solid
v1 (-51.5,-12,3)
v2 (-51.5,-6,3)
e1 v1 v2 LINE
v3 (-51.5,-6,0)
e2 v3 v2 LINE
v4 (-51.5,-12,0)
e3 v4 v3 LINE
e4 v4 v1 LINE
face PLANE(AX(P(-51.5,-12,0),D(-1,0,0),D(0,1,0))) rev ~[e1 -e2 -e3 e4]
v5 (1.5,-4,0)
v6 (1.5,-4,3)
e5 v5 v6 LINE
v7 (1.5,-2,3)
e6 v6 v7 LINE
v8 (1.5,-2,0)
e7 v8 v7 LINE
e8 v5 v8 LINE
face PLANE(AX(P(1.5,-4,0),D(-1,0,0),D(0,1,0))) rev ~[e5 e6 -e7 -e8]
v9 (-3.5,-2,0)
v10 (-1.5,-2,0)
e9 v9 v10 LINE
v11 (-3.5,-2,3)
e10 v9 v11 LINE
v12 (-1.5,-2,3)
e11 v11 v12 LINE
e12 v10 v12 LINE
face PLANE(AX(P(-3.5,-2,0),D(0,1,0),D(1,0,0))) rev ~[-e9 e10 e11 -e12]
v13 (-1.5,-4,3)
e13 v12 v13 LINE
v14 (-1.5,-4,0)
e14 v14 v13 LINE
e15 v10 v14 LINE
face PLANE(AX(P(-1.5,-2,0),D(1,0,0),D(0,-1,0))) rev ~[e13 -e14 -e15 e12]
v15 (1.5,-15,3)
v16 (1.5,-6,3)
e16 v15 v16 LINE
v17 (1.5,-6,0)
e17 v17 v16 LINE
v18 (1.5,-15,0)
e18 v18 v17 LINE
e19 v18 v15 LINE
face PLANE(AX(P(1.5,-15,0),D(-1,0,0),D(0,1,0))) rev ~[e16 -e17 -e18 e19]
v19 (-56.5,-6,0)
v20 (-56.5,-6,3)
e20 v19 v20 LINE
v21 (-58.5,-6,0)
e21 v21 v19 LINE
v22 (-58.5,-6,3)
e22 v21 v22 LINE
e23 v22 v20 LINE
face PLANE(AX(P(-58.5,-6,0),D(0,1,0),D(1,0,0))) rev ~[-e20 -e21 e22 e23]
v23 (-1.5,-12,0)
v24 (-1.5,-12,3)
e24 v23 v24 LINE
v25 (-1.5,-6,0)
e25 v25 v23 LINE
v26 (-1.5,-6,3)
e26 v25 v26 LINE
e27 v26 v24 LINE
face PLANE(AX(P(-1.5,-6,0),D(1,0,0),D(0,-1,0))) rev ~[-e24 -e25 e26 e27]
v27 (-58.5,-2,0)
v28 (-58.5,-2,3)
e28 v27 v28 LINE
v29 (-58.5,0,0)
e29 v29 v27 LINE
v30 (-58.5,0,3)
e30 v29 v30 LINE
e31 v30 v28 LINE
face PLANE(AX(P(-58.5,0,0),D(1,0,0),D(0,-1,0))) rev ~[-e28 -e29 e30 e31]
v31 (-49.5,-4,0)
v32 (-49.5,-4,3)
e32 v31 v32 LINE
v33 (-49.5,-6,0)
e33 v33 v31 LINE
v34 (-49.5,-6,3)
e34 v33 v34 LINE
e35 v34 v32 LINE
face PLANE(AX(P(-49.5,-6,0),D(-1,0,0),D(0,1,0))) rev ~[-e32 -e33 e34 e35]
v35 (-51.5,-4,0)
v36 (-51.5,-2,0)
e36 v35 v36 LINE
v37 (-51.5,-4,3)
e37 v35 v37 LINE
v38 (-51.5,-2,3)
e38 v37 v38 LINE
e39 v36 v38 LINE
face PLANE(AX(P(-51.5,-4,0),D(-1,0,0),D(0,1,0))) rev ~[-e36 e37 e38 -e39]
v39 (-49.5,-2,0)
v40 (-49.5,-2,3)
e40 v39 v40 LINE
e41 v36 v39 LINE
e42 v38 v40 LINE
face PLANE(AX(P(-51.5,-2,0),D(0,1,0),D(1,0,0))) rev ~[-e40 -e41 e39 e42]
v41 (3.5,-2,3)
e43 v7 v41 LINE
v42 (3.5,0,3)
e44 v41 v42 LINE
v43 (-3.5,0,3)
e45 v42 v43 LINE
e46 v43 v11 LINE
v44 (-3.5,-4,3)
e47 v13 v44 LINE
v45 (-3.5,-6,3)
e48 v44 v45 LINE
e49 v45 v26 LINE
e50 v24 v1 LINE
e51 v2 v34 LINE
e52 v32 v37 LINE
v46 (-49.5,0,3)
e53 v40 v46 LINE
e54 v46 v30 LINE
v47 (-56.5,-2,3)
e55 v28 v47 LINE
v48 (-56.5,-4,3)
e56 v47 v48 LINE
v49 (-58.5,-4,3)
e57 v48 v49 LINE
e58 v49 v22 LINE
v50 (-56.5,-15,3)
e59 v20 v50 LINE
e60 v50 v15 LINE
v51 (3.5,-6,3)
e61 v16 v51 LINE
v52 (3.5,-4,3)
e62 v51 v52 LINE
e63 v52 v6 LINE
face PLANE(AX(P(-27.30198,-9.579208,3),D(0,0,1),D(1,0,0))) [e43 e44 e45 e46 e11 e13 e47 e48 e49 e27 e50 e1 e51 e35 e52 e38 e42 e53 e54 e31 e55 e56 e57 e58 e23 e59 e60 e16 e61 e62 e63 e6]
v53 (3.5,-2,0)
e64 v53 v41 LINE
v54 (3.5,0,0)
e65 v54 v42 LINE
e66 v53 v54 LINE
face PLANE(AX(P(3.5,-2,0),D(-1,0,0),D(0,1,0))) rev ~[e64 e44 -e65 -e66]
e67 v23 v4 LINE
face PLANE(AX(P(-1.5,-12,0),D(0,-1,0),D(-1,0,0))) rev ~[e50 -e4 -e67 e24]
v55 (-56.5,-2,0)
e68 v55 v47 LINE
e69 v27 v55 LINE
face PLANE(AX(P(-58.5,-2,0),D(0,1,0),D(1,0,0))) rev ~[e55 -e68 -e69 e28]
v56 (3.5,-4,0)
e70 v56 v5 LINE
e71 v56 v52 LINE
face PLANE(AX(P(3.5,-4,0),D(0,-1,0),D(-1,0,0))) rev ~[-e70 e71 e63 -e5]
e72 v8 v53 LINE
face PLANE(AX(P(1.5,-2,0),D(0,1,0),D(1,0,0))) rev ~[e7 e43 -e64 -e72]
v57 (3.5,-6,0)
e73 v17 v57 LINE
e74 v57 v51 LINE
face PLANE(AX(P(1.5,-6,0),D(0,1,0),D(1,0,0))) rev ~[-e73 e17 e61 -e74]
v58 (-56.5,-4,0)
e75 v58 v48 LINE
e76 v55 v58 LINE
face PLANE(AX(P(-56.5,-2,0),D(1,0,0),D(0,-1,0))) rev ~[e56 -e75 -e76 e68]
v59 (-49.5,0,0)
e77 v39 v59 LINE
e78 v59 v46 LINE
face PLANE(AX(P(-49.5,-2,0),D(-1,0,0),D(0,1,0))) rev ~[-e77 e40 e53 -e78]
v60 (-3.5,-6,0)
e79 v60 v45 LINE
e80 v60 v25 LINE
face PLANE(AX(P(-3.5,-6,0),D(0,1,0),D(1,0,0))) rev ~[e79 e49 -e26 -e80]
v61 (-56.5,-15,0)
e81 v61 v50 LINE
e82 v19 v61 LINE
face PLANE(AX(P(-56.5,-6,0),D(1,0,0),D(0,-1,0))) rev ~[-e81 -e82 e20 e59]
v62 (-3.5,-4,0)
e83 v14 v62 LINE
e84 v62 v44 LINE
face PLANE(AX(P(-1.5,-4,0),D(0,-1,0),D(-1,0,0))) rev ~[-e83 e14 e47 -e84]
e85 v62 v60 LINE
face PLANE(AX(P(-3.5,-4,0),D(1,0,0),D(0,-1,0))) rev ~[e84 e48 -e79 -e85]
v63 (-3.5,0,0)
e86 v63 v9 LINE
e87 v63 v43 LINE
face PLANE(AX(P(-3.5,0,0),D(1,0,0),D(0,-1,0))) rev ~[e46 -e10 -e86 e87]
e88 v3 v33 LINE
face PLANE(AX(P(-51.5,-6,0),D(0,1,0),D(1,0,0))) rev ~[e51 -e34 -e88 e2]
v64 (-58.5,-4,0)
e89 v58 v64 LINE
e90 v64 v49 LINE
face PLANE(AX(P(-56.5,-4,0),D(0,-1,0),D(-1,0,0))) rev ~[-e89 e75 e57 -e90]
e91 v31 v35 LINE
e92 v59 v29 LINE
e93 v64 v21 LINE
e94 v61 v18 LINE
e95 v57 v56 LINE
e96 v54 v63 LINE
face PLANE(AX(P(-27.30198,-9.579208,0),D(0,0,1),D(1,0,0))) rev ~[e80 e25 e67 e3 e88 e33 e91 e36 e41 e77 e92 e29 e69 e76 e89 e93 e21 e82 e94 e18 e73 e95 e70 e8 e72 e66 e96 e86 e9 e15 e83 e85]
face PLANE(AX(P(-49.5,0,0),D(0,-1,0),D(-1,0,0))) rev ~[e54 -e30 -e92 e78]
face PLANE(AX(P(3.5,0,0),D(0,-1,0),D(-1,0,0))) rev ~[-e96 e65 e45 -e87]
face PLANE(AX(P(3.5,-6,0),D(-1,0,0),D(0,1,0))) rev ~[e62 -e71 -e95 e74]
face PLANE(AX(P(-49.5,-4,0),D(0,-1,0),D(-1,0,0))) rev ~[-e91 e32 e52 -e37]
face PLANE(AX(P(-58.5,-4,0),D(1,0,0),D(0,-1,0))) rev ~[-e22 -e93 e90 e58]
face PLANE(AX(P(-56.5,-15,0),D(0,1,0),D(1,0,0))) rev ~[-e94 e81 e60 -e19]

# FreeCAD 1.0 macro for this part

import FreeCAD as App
import Part
import Sketcher
from FreeCAD import Vector

doc = App.newDocument("Part")
params = doc.addObject("Spreadsheet::Sheet", "Params")
for row, (alias, value) in enumerate([
    ("sketch1_width", "7 mm"),
    ("sketch1_width2", "2 mm"),
    ("sketch1_width3", "50 mm"),
    ("sketch1_width4", "9 mm"),
    ("sketch1_height", "6 mm"),
    ("pad1_length", "3 mm"),
], start=1):
    params.set(f"A{row}", alias)
    params.set(f"B{row}", "=" + value)
    params.setAlias(f"B{row}", alias)

body = doc.addObject("PartDesign::Body", "Body")

# Sketch on XY plane
sketch1 = body.newObject("Sketcher::SketchObject", "Sketch")
sketch1.AttachmentSupport = (doc.getObject("XY_Plane"), [""])
sketch1.MapMode = "FlatFace"
sketch1.addGeometry(Part.LineSegment(Vector(3.5, 0, 0), Vector(-3.5, 0, 0)), False)
sketch1.addGeometry(Part.LineSegment(Vector(-3.5, 0, 0), Vector(-3.5, -2, 0)), False)
sketch1.addGeometry(Part.LineSegment(Vector(-3.5, -2, 0), Vector(-1.5, -2, 0)), False)
sketch1.addGeometry(Part.LineSegment(Vector(-1.5, -2, 0), Vector(-1.5, -4, 0)), False)
sketch1.addGeometry(Part.LineSegment(Vector(-1.5, -4, 0), Vector(-3.5, -4, 0)), False)
sketch1.addGeometry(Part.LineSegment(Vector(-3.5, -4, 0), Vector(-3.5, -6, 0)), False)
sketch1.addGeometry(Part.LineSegment(Vector(-3.5, -6, 0), Vector(-1.5, -6, 0)), False)
sketch1.addGeometry(Part.LineSegment(Vector(-1.5, -6, 0), Vector(-1.5, -12, 0)), False)
sketch1.addGeometry(Part.LineSegment(Vector(-1.5, -12, 0), Vector(-51.5, -12, 0)), False)
sketch1.addGeometry(Part.LineSegment(Vector(-51.5, -12, 0), Vector(-51.5, -6, 0)), False)
sketch1.addGeometry(Part.LineSegment(Vector(-51.5, -6, 0), Vector(-49.5, -6, 0)), False)
sketch1.addGeometry(Part.LineSegment(Vector(-49.5, -6, 0), Vector(-49.5, -4, 0)), False)
sketch1.addGeometry(Part.LineSegment(Vector(-49.5, -4, 0), Vector(-51.5, -4, 0)), False)
sketch1.addGeometry(Part.LineSegment(Vector(-51.5, -4, 0), Vector(-51.5, -2, 0)), False)
sketch1.addGeometry(Part.LineSegment(Vector(-51.5, -2, 0), Vector(-49.5, -2, 0)), False)
sketch1.addGeometry(Part.LineSegment(Vector(-49.5, -2, 0), Vector(-49.5, 0, 0)), False)
sketch1.addGeometry(Part.LineSegment(Vector(-49.5, 0, 0), Vector(-58.5, 0, 0)), False)
sketch1.addGeometry(Part.LineSegment(Vector(-58.5, 0, 0), Vector(-58.5, -2, 0)), False)
sketch1.addGeometry(Part.LineSegment(Vector(-58.5, -2, 0), Vector(-56.5, -2, 0)), False)
sketch1.addGeometry(Part.LineSegment(Vector(-56.5, -2, 0), Vector(-56.5, -4, 0)), False)
sketch1.addGeometry(Part.LineSegment(Vector(-56.5, -4, 0), Vector(-58.5, -4, 0)), False)
sketch1.addGeometry(Part.LineSegment(Vector(-58.5, -4, 0), Vector(-58.5, -6, 0)), False)
sketch1.addGeometry(Part.LineSegment(Vector(-58.5, -6, 0), Vector(-56.5, -6, 0)), False)
sketch1.addGeometry(Part.LineSegment(Vector(-56.5, -6, 0), Vector(-56.5, -15, 0)), False)
sketch1.addGeometry(Part.LineSegment(Vector(-56.5, -15, 0), Vector(1.5, -15, 0)), False)
sketch1.addGeometry(Part.LineSegment(Vector(1.5, -15, 0), Vector(1.5, -6, 0)), False)
sketch1.addGeometry(Part.LineSegment(Vector(1.5, -6, 0), Vector(3.5, -6, 0)), False)
sketch1.addGeometry(Part.LineSegment(Vector(3.5, -6, 0), Vector(3.5, -4, 0)), False)
sketch1.addGeometry(Part.LineSegment(Vector(3.5, -4, 0), Vector(1.5, -4, 0)), False)
sketch1.addGeometry(Part.LineSegment(Vector(1.5, -4, 0), Vector(1.5, -2, 0)), False)
sketch1.addGeometry(Part.LineSegment(Vector(1.5, -2, 0), Vector(3.5, -2, 0)), False)
sketch1.addGeometry(Part.LineSegment(Vector(3.5, -2, 0), Vector(3.5, 0, 0)), False)
sketch1.addConstraint(Sketcher.Constraint("Coincident", 0, 2, 1, 1))
sketch1.addConstraint(Sketcher.Constraint("Coincident", 1, 2, 2, 1))
sketch1.addConstraint(Sketcher.Constraint("Coincident", 2, 2, 3, 1))
sketch1.addConstraint(Sketcher.Constraint("Coincident", 3, 2, 4, 1))
sketch1.addConstraint(Sketcher.Constraint("Coincident", 4, 2, 5, 1))
sketch1.addConstraint(Sketcher.Constraint("Coincident", 5, 2, 6, 1))
sketch1.addConstraint(Sketcher.Constraint("Coincident", 6, 2, 7, 1))
sketch1.addConstraint(Sketcher.Constraint("Coincident", 7, 2, 8, 1))
sketch1.addConstraint(Sketcher.Constraint("Coincident", 8, 2, 9, 1))
sketch1.addConstraint(Sketcher.Constraint("Coincident", 9, 2, 10, 1))
sketch1.addConstraint(Sketcher.Constraint("Coincident", 10, 2, 11, 1))
sketch1.addConstraint(Sketcher.Constraint("Coincident", 11, 2, 12, 1))
sketch1.addConstraint(Sketcher.Constraint("Coincident", 12, 2, 13, 1))
sketch1.addConstraint(Sketcher.Constraint("Coincident", 13, 2, 14, 1))
sketch1.addConstraint(Sketcher.Constraint("Coincident", 14, 2, 15, 1))
sketch1.addConstraint(Sketcher.Constraint("Coincident", 15, 2, 16, 1))
sketch1.addConstraint(Sketcher.Constraint("Coincident", 16, 2, 17, 1))
sketch1.addConstraint(Sketcher.Constraint("Coincident", 17, 2, 18, 1))
sketch1.addConstraint(Sketcher.Constraint("Coincident", 18, 2, 19, 1))
sketch1.addConstraint(Sketcher.Constraint("Coincident", 19, 2, 20, 1))
sketch1.addConstraint(Sketcher.Constraint("Coincident", 20, 2, 21, 1))
sketch1.addConstraint(Sketcher.Constraint("Coincident", 21, 2, 22, 1))
sketch1.addConstraint(Sketcher.Constraint("Coincident", 22, 2, 23, 1))
sketch1.addConstraint(Sketcher.Constraint("Coincident", 23, 2, 24, 1))
sketch1.addConstraint(Sketcher.Constraint("Coincident", 24, 2, 25, 1))
sketch1.addConstraint(Sketcher.Constraint("Coincident", 25, 2, 26, 1))
sketch1.addConstraint(Sketcher.Constraint("Coincident", 26, 2, 27, 1))
sketch1.addConstraint(Sketcher.Constraint("Coincident", 27, 2, 28, 1))
sketch1.addConstraint(Sketcher.Constraint("Coincident", 28, 2, 29, 1))
sketch1.addConstraint(Sketcher.Constraint("Coincident", 29, 2, 30, 1))
sketch1.addConstraint(Sketcher.Constraint("Coincident", 30, 2, 31, 1))
sketch1.addConstraint(Sketcher.Constraint("Coincident", 31, 2, 0, 1))
sketch1.addConstraint(Sketcher.Constraint("Horizontal", 0))
sketch1.addConstraint(Sketcher.Constraint("Vertical", 1))
sketch1.addConstraint(Sketcher.Constraint("Horizontal", 2))
sketch1.addConstraint(Sketcher.Constraint("Vertical", 3))
sketch1.addConstraint(Sketcher.Constraint("Horizontal", 4))
sketch1.addConstraint(Sketcher.Constraint("Vertical", 5))
sketch1.addConstraint(Sketcher.Constraint("Horizontal", 6))
sketch1.addConstraint(Sketcher.Constraint("Vertical", 7))
sketch1.addConstraint(Sketcher.Constraint("Horizontal", 8))
sketch1.addConstraint(Sketcher.Constraint("Vertical", 9))
sketch1.addConstraint(Sketcher.Constraint("Horizontal", 10))
sketch1.addConstraint(Sketcher.Constraint("Vertical", 11))
sketch1.addConstraint(Sketcher.Constraint("Horizontal", 12))
sketch1.addConstraint(Sketcher.Constraint("Vertical", 13))
sketch1.addConstraint(Sketcher.Constraint("Horizontal", 14))
sketch1.addConstraint(Sketcher.Constraint("Vertical", 15))
sketch1.addConstraint(Sketcher.Constraint("Horizontal", 16))
sketch1.addConstraint(Sketcher.Constraint("Vertical", 17))
sketch1.addConstraint(Sketcher.Constraint("Horizontal", 18))
sketch1.addConstraint(Sketcher.Constraint("Vertical", 19))
sketch1.addConstraint(Sketcher.Constraint("Horizontal", 20))
sketch1.addConstraint(Sketcher.Constraint("Vertical", 21))
sketch1.addConstraint(Sketcher.Constraint("Horizontal", 22))
sketch1.addConstraint(Sketcher.Constraint("Vertical", 23))
sketch1.addConstraint(Sketcher.Constraint("Horizontal", 24))
sketch1.addConstraint(Sketcher.Constraint("Vertical", 25))
sketch1.addConstraint(Sketcher.Constraint("Horizontal", 26))
sketch1.addConstraint(Sketcher.Constraint("Vertical", 27))
sketch1.addConstraint(Sketcher.Constraint("Horizontal", 28))
sketch1.addConstraint(Sketcher.Constraint("Vertical", 29))
sketch1.addConstraint(Sketcher.Constraint("Horizontal", 30))
sketch1.addConstraint(Sketcher.Constraint("Vertical", 31))
sketch1.addConstraint(Sketcher.Constraint("Symmetric", 0, 2, 31, 2, -1, 1))
sketch1.addConstraint(Sketcher.Constraint("Symmetric", 6, 2, 25, 2, -2))
sketch1.addConstraint(Sketcher.Constraint("Symmetric", 4, 2, 27, 2, -2))
sketch1.addConstraint(Sketcher.Constraint("Symmetric", 2, 2, 29, 2, -2))
sketch1.addConstraint(Sketcher.Constraint("PointOnObject", 15, 2, -1))
sketch1.addConstraint(Sketcher.Constraint("Horizontal", 6, 2, 9, 2))
sketch1.addConstraint(Sketcher.Constraint("Horizontal", 4, 2, 11, 2))
sketch1.addConstraint(Sketcher.Constraint("Horizontal", 2, 2, 13, 2))
sketch1.addConstraint(Sketcher.Constraint("Horizontal", 14, 2, 17, 2))
sketch1.addConstraint(Sketcher.Constraint("Horizontal", 12, 2, 19, 2))
sketch1.addConstraint(Sketcher.Constraint("Horizontal", 10, 2, 21, 2))
sketch1.addConstraint(Sketcher.Constraint("Vertical", 1, 2, 4, 2))
sketch1.addConstraint(Sketcher.Constraint("Vertical", 3, 2, 6, 2))
sketch1.addConstraint(Sketcher.Constraint("Vertical", 9, 2, 12, 2))
sketch1.addConstraint(Sketcher.Constraint("Vertical", 11, 2, 14, 2))
sketch1.addConstraint(Sketcher.Constraint("Vertical", 17, 2, 20, 2))
sketch1.addConstraint(Sketcher.Constraint("Vertical", 19, 2, 22, 2))
sketch1.addConstraint(Sketcher.Constraint("Equal", 6, 10))
sketch1.addConstraint(Sketcher.Constraint("Equal", 14, 18))
sketch1.addConstraint(Sketcher.Constraint("Equal", 30, 1))
sketch1.addConstraint(Sketcher.Constraint("Equal", 1, 3))
sketch1.addConstraint(Sketcher.Constraint("Equal", 3, 5))
sketch1.addConstraint(Sketcher.Constraint("Equal", 16, 23))
sketch1.addConstraint(Sketcher.Constraint("DistanceX", 0, 2, 0, 1, 7.0))
sketch1.addConstraint(Sketcher.Constraint("DistanceX", 2, 1, 2, 2, 2.0))
sketch1.addConstraint(Sketcher.Constraint("DistanceX", 8, 2, 8, 1, 50.0))
sketch1.addConstraint(Sketcher.Constraint("DistanceX", 16, 2, 16, 1, 9.0))
sketch1.addConstraint(Sketcher.Constraint("DistanceY", 7, 2, 7, 1, 6.0))
sketch1.setExpression("Constraints[87]", "Params.sketch1_width")
sketch1.setExpression("Constraints[88]", "Params.sketch1_width2")
sketch1.setExpression("Constraints[89]", "Params.sketch1_width3")
sketch1.setExpression("Constraints[90]", "Params.sketch1_width4")
sketch1.setExpression("Constraints[91]", "Params.sketch1_height")
pad1 = body.newObject("PartDesign::Pad", "Pad")
pad1.Profile = sketch1
pad1.setExpression("Length", "Params.pad1_length")

doc.recompute()
